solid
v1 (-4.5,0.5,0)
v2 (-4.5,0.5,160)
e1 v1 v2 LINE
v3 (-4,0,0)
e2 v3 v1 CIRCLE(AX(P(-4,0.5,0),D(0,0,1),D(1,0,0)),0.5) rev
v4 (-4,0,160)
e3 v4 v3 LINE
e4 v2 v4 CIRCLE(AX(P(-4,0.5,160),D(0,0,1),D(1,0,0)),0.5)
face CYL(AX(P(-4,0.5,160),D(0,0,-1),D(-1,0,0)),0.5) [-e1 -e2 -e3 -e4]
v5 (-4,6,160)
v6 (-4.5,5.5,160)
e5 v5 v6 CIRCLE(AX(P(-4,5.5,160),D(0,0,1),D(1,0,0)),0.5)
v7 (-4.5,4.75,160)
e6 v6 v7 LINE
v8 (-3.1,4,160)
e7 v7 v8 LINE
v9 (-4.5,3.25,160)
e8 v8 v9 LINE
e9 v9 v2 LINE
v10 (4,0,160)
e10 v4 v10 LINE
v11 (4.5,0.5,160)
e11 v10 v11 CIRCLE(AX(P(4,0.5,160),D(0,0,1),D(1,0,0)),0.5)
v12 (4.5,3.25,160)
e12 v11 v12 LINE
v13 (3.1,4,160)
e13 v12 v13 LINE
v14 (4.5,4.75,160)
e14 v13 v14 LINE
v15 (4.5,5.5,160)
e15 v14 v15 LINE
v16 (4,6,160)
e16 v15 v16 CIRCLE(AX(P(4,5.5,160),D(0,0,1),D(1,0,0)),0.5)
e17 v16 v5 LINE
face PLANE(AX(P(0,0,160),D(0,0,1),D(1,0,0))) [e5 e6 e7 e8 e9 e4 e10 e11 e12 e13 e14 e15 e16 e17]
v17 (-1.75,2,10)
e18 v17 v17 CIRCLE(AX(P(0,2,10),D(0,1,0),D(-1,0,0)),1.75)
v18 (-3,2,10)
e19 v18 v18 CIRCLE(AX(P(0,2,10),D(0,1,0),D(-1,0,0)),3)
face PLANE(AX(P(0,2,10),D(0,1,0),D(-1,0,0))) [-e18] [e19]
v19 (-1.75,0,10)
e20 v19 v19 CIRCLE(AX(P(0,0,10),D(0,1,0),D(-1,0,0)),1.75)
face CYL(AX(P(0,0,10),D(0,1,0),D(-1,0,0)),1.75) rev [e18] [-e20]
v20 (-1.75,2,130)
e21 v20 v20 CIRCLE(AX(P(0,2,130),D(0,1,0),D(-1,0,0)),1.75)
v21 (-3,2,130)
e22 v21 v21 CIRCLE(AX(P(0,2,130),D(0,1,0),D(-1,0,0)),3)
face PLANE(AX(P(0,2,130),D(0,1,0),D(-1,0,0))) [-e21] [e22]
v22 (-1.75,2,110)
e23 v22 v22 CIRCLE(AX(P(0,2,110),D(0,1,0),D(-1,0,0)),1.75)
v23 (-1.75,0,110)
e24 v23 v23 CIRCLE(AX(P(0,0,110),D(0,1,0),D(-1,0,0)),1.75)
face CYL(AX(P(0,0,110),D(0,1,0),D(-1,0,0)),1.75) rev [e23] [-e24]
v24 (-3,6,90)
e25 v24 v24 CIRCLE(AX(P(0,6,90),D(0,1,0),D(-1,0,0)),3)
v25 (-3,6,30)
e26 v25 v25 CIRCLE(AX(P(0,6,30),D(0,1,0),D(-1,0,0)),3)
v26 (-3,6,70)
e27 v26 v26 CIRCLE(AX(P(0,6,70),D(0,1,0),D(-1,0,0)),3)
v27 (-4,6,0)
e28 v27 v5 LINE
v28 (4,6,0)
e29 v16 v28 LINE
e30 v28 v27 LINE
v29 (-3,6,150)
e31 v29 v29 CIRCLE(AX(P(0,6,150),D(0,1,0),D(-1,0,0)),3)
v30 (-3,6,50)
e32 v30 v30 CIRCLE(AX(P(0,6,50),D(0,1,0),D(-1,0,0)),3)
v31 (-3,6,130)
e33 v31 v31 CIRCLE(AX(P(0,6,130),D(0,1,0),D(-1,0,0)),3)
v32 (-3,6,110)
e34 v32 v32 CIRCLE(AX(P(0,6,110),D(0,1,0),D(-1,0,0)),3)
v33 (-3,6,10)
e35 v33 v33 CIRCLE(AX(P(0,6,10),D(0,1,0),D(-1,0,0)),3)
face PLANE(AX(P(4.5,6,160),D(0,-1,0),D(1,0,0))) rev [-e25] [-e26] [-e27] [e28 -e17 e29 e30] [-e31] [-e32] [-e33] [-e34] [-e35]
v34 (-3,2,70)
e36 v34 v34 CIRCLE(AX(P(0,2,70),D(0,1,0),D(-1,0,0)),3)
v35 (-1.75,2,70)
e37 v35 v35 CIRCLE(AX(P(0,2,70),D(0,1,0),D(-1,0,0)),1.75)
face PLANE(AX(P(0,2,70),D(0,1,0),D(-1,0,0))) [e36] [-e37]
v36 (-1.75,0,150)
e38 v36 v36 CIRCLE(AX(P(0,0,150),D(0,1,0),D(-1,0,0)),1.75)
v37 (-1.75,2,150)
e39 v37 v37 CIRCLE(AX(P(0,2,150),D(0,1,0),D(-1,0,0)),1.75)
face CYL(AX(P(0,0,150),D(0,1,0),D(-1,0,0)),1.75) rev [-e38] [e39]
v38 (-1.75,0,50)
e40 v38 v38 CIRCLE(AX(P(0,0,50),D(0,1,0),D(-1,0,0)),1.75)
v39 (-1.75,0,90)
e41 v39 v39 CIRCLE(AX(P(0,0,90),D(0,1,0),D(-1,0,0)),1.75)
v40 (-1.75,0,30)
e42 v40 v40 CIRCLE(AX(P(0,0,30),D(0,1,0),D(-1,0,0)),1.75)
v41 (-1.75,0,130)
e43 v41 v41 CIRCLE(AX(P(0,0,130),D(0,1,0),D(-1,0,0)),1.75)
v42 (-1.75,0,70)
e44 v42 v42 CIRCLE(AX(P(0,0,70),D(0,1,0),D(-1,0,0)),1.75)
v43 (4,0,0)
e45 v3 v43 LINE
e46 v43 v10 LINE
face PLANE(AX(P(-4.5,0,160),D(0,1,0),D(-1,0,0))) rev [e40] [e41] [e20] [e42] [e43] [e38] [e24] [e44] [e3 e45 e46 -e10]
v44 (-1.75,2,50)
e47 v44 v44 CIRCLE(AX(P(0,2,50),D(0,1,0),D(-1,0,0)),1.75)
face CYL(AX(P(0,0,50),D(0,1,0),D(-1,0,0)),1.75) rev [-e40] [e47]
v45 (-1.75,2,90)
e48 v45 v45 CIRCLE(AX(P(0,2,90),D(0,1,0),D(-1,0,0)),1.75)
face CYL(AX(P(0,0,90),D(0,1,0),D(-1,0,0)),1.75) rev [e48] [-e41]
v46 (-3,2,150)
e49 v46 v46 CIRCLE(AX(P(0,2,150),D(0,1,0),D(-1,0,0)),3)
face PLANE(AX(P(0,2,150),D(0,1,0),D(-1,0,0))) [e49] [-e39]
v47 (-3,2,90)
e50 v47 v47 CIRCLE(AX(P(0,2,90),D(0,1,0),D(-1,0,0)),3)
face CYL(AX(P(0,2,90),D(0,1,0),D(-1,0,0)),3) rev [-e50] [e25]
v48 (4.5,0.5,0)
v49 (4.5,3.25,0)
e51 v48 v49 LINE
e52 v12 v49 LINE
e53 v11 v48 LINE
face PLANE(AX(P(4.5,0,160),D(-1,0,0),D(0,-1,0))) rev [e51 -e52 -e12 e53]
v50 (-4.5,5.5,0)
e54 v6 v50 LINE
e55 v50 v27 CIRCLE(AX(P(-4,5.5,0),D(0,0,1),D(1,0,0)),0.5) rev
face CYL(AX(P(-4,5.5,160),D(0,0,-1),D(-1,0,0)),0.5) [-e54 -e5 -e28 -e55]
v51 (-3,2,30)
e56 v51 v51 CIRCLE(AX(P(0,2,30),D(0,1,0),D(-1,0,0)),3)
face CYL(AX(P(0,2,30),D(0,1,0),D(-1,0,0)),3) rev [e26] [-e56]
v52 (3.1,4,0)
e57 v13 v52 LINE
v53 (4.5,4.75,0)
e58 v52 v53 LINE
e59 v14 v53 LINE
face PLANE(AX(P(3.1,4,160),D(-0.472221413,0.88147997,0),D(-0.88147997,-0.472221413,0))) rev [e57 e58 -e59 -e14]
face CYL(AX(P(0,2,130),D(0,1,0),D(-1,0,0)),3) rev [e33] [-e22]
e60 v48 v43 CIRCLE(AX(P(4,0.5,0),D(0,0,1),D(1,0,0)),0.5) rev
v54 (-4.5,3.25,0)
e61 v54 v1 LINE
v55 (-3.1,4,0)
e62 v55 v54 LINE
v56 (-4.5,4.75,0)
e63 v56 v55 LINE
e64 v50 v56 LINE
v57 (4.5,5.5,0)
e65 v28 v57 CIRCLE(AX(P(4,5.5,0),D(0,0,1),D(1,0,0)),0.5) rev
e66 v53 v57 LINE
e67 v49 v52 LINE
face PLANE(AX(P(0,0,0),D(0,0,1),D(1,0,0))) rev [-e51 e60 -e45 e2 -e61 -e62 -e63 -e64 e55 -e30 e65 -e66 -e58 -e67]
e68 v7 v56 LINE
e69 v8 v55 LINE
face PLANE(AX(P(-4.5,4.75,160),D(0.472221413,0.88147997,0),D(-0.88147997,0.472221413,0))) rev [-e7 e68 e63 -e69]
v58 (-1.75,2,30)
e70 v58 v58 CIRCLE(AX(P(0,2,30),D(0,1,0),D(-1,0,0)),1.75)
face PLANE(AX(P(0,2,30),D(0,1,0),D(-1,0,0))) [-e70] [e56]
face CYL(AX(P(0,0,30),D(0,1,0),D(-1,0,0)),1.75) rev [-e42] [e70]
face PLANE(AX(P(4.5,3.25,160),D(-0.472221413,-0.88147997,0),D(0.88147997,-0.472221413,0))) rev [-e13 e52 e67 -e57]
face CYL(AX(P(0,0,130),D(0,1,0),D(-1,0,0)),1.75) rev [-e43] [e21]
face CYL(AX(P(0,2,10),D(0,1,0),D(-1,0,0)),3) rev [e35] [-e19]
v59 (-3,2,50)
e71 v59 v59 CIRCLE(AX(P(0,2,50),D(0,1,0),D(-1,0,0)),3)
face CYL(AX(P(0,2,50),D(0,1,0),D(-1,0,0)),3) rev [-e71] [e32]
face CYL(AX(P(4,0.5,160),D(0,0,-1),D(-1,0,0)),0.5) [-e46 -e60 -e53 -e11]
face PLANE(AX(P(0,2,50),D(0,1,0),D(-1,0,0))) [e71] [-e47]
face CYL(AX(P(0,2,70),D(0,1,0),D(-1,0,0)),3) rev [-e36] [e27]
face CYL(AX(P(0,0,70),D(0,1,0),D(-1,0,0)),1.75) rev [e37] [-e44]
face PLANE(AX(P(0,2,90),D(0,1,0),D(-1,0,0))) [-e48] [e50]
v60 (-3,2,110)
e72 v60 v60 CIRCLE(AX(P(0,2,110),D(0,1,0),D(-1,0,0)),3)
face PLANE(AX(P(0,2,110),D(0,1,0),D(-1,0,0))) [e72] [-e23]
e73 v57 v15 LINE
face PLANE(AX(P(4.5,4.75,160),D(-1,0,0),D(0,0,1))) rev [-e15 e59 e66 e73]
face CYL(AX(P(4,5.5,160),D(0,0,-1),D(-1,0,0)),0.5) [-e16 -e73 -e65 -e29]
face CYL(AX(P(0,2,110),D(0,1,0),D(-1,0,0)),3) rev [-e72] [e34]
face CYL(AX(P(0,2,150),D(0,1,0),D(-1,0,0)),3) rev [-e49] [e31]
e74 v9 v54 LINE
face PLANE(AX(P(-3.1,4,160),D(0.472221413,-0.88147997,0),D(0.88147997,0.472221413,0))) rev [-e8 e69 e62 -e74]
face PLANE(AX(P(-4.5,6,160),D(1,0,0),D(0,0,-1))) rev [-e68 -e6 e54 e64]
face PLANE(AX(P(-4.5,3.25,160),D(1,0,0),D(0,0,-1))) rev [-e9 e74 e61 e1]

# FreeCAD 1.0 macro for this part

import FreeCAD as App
import Part
import Sketcher
Q = App.Units.Quantity


def edges_at(feature, points):
    """Names of the edges that pass closest to the given points."""
    edges = feature.Shape.Edges
    near = lambda p: min(range(len(edges)), key=lambda i: edges[i].distToShape(Part.Vertex(*p))[0])
    return sorted({f"Edge{near(p) + 1}" for p in points})


def add_polygon(sketch, points):
    """Adds a closed chain of lines whose ends are joined by coincident constraints."""
    first, n = sketch.GeometryCount, len(points)
    for a, b in zip(points, points[1:] + points[:1]):
        sketch.addGeometry(Part.LineSegment(App.Vector(*a, 0), App.Vector(*b, 0)), False)
    for i in range(n):
        sketch.addConstraint(Sketcher.Constraint("Coincident", first + i, 2, first + (i + 1) % n, 1))

doc = App.newDocument("Part")
body = doc.addObject("PartDesign::Body", "Body")

# Sketch on XY plane
sketch1 = body.newObject("Sketcher::SketchObject", "Sketch")
sketch1.AttachmentSupport = (doc.getObject("XY_Plane"), [""])
sketch1.MapMode = "FlatFace"
add_polygon(sketch1, [(-4.5, 0), (4.5, 0), (4.5, 3.2), (3.1, 4), (4.5, 4.8), (4.5, 6), (-4.5, 6), (-4.5, 4.8), (-3.1, 4), (-4.5, 3.2)])  # lines 0-9
sketch1.addConstraint(Sketcher.Constraint("Horizontal", 0))
sketch1.addConstraint(Sketcher.Constraint("Vertical", 1))
sketch1.addConstraint(Sketcher.Constraint("Vertical", 4))
sketch1.addConstraint(Sketcher.Constraint("Horizontal", 5))
sketch1.addConstraint(Sketcher.Constraint("Vertical", 6))
sketch1.addConstraint(Sketcher.Constraint("Vertical", 9))
sketch1.addConstraint(Sketcher.Constraint("Symmetric", 0, 2, 9, 2, -1, 1))
sketch1.addConstraint(Sketcher.Constraint("Symmetric", 3, 2, 6, 2, -2))
sketch1.addConstraint(Sketcher.Constraint("Symmetric", 2, 2, 7, 2, -2))
sketch1.addConstraint(Sketcher.Constraint("Parallel", 2, 7))
sketch1.addConstraint(Sketcher.Constraint("Parallel", 3, 8))
sketch1.addConstraint(Sketcher.Constraint("Vertical", 1, 2, 3, 2))
sketch1.addConstraint(Sketcher.Constraint("DistanceX", 0, 1, 0, 2, Q("9 mm")))
sketch1.addConstraint(Sketcher.Constraint("DistanceY", -1, 1, 2, 2, Q("4 mm")))
sketch1.addConstraint(Sketcher.Constraint("DistanceY", -1, 1, 4, 2, Q("6 mm")))
sketch1.addConstraint(Sketcher.Constraint("DistanceY", 1, 1, 1, 2, Q("3.25 mm")))
sketch1.addConstraint(Sketcher.Constraint("DistanceX", -1, 1, 2, 2, Q("3.1 mm")))
pad1 = body.newObject("PartDesign::Pad", "Pad")
pad1.Profile = sketch1
pad1.Length = 160
doc.recompute()

fillet = body.newObject("PartDesign::Fillet", "Fillet")
fillet.Base = (pad1, edges_at(pad1, [
    (-4.5, 6, 80),
    (4.5, 6, 80),
    (4.5, 0, 80),
    (-4.5, 0, 80),
]))
fillet.Radius = 0.5

# Sketch on XZ plane
sketch2 = body.newObject("Sketcher::SketchObject", "Sketch001")
sketch2.AttachmentSupport = (doc.getObject("XZ_Plane"), [""])
sketch2.MapMode = "FlatFace"
sketch2.AttachmentOffset = App.Placement(App.Vector(0, 0, -6), App.Rotation())
sketch2.addGeometry(Part.Circle(App.Vector(0, 10, 0), App.Vector(0, 0, 1), 3), False)
sketch2.addConstraint(Sketcher.Constraint("PointOnObject", 0, 3, -2))
sketch2.addConstraint(Sketcher.Constraint("Diameter", 0, Q("6 mm")))
sketch2.addConstraint(Sketcher.Constraint("DistanceY", -1, 1, 0, 3, Q("10 mm")))
pocket1 = body.newObject("PartDesign::Pocket", "Pocket")
pocket1.Profile = sketch2
pocket1.Length = 4
pocket1.Reversed = True

# Sketch on XZ plane
sketch3 = body.newObject("Sketcher::SketchObject", "Sketch002")
sketch3.AttachmentSupport = (doc.getObject("XZ_Plane"), [""])
sketch3.MapMode = "FlatFace"
sketch3.AttachmentOffset = App.Placement(App.Vector(0, 0, -2), App.Rotation())
sketch3.addGeometry(Part.Circle(App.Vector(0, 10, 0), App.Vector(0, 0, 1), 1.8), False)
sketch3.addConstraint(Sketcher.Constraint("PointOnObject", 0, 3, -2))
sketch3.addConstraint(Sketcher.Constraint("Diameter", 0, Q("3.5 mm")))
sketch3.addConstraint(Sketcher.Constraint("DistanceY", -1, 1, 0, 3, Q("10 mm")))
pocket2 = body.newObject("PartDesign::Pocket", "Pocket001")
pocket2.Profile = sketch3
pocket2.Type = "ThroughAll"
pocket2.Reversed = True
doc.recompute()

linearpattern = body.newObject("PartDesign::LinearPattern", "LinearPattern")
linearpattern.Originals = [pocket1, pocket2]
linearpattern.Direction = (doc.getObject("Z_Axis"), [""])
linearpattern.Mode = "offset"
linearpattern.Offset = 20
linearpattern.Occurrences = 8
body.Tip = linearpattern

doc.recompute()
